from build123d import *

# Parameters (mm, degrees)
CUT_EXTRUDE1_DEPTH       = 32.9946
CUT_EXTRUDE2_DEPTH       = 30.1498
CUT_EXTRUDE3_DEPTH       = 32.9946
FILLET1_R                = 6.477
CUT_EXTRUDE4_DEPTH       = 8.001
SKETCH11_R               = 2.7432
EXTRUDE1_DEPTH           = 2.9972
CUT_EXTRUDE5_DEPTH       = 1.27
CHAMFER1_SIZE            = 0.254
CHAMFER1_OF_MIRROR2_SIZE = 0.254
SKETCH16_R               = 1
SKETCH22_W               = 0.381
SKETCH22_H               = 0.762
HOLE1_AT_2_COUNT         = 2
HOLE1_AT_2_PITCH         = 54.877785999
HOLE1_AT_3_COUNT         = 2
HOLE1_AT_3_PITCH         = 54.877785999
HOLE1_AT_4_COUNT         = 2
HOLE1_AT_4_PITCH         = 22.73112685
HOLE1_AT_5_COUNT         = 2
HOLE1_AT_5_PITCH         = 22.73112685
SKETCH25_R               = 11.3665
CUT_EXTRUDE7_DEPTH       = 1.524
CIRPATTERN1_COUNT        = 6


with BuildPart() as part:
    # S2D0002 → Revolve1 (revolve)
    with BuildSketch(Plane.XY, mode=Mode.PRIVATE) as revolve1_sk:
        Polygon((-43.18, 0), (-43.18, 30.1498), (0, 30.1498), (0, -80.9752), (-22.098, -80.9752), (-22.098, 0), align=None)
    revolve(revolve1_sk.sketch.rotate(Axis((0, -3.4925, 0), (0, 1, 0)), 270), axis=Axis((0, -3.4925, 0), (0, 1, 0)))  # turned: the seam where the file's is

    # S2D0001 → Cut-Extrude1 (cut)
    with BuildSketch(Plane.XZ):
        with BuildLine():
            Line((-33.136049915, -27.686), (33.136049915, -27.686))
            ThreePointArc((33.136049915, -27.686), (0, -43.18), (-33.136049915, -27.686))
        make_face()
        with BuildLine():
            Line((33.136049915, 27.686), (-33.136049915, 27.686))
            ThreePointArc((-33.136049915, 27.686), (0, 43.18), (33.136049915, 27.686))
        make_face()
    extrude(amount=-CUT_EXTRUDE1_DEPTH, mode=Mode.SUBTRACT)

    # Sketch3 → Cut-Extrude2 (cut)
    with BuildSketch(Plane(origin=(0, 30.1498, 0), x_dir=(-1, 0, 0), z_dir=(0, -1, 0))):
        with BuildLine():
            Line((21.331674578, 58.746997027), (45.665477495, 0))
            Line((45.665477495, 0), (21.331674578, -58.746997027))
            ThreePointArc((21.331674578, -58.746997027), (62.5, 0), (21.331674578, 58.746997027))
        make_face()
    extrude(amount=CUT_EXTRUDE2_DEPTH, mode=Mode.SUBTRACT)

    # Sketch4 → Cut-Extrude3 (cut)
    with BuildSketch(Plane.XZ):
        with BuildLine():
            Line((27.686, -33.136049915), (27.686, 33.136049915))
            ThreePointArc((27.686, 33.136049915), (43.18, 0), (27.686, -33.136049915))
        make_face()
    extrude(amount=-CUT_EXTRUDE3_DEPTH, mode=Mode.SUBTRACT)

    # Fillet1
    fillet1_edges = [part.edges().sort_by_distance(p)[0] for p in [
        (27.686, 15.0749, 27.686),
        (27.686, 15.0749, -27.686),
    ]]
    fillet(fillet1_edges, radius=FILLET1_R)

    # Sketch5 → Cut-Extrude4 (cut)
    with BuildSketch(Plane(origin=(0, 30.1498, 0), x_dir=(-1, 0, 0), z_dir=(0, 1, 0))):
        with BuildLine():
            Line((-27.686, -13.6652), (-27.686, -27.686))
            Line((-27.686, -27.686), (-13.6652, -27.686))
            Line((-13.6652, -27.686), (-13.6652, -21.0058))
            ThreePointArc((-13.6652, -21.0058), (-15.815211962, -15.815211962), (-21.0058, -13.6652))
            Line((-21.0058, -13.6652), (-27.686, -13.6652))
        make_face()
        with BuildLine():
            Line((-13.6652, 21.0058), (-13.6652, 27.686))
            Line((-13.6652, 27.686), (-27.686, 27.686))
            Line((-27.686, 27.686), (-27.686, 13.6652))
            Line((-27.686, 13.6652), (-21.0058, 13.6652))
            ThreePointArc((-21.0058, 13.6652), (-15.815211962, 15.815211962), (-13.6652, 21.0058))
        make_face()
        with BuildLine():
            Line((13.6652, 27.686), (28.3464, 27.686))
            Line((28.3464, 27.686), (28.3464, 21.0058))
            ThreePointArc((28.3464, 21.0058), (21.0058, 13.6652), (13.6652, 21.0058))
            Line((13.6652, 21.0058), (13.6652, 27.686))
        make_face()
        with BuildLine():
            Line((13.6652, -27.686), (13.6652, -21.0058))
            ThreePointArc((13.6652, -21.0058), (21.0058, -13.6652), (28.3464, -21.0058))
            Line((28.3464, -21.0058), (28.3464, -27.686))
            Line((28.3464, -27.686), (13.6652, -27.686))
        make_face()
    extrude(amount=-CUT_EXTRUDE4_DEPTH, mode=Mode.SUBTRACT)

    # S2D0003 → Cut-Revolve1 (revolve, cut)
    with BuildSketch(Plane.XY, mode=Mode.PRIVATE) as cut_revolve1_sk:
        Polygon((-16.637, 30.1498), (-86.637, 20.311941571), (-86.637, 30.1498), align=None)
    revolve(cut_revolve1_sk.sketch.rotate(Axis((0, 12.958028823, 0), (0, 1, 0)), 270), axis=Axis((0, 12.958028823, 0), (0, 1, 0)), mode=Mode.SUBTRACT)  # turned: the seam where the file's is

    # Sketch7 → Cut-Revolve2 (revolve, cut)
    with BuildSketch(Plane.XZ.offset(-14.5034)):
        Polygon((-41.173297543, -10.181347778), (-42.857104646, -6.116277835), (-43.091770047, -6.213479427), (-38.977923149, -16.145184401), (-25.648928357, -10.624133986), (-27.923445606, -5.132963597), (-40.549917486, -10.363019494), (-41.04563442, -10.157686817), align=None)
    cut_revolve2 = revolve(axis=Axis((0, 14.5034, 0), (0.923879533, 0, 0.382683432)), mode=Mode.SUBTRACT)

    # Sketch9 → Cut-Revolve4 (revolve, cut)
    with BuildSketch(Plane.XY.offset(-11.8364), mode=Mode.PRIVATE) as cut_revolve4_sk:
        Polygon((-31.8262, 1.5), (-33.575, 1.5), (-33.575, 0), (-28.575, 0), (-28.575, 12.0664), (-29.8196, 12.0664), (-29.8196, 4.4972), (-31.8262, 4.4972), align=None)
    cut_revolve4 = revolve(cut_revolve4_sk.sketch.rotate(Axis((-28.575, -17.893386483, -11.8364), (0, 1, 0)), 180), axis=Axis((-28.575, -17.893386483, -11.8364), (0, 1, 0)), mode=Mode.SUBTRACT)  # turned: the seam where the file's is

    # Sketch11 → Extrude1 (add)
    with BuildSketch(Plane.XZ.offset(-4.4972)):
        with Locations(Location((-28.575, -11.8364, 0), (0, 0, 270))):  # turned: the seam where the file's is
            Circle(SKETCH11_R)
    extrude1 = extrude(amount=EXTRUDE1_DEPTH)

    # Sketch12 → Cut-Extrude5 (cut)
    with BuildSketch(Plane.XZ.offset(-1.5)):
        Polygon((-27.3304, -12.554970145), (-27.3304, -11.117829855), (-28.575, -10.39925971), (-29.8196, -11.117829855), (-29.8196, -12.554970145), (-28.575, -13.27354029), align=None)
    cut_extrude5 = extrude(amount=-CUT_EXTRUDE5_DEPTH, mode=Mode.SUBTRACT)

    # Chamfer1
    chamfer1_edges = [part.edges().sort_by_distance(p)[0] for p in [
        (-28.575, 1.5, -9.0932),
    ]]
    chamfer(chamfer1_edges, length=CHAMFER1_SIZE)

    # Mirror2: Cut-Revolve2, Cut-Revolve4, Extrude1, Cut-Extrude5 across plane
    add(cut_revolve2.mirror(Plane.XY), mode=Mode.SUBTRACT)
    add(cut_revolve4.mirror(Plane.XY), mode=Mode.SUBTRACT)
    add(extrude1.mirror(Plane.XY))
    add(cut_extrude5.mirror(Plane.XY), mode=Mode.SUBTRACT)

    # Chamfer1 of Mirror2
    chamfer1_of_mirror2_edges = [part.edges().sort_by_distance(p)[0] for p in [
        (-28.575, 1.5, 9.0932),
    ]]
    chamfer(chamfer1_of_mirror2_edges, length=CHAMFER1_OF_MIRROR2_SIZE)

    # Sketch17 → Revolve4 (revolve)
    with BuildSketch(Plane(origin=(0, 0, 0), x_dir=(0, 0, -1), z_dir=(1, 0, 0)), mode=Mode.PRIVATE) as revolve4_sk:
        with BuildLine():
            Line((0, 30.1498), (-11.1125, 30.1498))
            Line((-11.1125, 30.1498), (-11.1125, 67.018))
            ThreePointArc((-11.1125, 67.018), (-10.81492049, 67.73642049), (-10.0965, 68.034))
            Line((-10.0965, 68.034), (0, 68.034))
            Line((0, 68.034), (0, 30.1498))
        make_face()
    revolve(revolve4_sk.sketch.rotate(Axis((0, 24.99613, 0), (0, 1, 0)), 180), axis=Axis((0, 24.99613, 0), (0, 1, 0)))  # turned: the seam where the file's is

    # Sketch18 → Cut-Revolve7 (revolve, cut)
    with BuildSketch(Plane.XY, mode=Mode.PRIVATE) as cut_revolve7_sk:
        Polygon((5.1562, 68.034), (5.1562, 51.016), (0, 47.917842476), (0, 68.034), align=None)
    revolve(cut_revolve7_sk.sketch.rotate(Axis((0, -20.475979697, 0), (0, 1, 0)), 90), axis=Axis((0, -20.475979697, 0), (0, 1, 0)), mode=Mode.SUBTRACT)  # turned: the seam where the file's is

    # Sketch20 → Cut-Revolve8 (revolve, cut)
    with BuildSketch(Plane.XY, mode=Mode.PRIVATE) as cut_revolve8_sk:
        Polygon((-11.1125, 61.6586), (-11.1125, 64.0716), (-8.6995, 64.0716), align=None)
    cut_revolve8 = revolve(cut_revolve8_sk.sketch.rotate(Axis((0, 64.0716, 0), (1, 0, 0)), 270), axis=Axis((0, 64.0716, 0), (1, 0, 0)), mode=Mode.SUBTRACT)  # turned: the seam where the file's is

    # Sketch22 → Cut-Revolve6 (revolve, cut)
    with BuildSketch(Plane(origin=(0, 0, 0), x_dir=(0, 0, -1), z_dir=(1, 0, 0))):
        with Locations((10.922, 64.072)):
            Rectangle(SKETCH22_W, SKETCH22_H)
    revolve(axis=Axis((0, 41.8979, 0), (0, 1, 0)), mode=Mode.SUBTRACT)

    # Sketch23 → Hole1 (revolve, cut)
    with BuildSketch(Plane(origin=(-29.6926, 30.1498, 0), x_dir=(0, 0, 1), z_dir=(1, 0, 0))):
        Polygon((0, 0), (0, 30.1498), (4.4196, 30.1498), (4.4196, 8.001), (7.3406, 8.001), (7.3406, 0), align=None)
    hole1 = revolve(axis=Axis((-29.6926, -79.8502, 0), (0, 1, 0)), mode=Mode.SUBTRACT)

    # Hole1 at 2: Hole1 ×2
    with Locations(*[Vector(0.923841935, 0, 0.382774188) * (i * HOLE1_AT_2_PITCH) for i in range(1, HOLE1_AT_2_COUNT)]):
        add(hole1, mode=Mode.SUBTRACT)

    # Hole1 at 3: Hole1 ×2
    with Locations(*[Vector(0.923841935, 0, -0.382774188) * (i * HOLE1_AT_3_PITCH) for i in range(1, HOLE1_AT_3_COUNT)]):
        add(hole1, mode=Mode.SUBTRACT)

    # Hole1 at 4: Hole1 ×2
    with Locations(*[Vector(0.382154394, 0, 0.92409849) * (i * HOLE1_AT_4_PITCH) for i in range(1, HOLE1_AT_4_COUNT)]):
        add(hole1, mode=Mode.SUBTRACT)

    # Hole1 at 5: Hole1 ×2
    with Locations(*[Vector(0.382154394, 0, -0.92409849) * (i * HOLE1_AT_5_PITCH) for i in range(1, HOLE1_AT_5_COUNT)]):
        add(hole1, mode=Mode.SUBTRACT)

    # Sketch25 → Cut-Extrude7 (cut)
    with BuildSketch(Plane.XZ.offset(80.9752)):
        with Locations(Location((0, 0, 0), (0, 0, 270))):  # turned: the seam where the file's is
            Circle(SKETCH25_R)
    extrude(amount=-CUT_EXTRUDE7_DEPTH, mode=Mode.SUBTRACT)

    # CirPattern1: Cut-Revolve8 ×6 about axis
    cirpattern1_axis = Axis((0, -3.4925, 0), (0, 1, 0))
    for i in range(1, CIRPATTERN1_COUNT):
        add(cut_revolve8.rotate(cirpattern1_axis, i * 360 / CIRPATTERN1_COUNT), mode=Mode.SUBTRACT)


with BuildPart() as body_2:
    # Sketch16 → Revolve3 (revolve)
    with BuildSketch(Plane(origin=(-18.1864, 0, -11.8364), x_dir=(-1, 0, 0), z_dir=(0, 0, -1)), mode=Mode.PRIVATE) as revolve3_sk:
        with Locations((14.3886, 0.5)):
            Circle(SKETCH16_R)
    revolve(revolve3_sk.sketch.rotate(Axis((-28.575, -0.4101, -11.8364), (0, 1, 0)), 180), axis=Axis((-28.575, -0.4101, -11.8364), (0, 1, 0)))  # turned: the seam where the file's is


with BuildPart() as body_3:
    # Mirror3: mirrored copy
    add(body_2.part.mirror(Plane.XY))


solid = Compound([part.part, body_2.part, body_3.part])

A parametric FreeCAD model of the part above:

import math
import FreeCAD as App
import Part
import Sketcher
from FreeCAD import Vector
Q = App.Units.Quantity


def edges_at(feature, points):
    """Names of the edges that pass closest to the given points."""
    edges = feature.Shape.Edges
    near = lambda p: min(range(len(edges)), key=lambda i: edges[i].distToShape(Part.Vertex(*p))[0])
    return sorted({f"Edge{near(p) + 1}" for p in points})


def add_polygon(sketch, points):
    """Adds a closed chain of lines whose ends are joined by coincident constraints."""
    first, n = sketch.GeometryCount, len(points)
    for a, b in zip(points, points[1:] + points[:1]):
        sketch.addGeometry(Part.LineSegment(App.Vector(*a, 0), App.Vector(*b, 0)), False)
    for i in range(n):
        sketch.addConstraint(Sketcher.Constraint("Coincident", first + i, 2, first + (i + 1) % n, 1))

doc = App.newDocument("Part")
body = doc.addObject("PartDesign::Body", "Body")

# Sketch on XY plane
sketch1 = body.newObject("Sketcher::SketchObject", "Sketch")
sketch1.AttachmentSupport = (doc.getObject("XY_Plane"), [""])
sketch1.MapMode = "FlatFace"
add_polygon(sketch1, [(-43, 30), (-43, 0), (-22, 0), (-22, -81), (0, -81), (0, 30)])  # lines 0-5
sketch1.addConstraint(Sketcher.Constraint("Vertical", 0))
sketch1.addConstraint(Sketcher.Constraint("Horizontal", 1))
sketch1.addConstraint(Sketcher.Constraint("Vertical", 2))
sketch1.addConstraint(Sketcher.Constraint("Horizontal", 3))
sketch1.addConstraint(Sketcher.Constraint("Vertical", 4))
sketch1.addConstraint(Sketcher.Constraint("Horizontal", 5))
sketch1.addConstraint(Sketcher.Constraint("PointOnObject", 0, 2, -1))
sketch1.addConstraint(Sketcher.Constraint("PointOnObject", 3, 2, -2))
sketch1.addConstraint(Sketcher.Constraint("DistanceX", 5, 2, 5, 1, Q("1.7 in")))
sketch1.addConstraint(Sketcher.Constraint("DistanceX", 1, 1, 1, 2, Q("0.83 in")))
sketch1.addConstraint(Sketcher.Constraint("DistanceY", 0, 2, 0, 1, Q("1.187 in")))
sketch1.addConstraint(Sketcher.Constraint("DistanceY", 2, 2, 2, 1, Q("3.188 in")))
revolution = body.newObject("PartDesign::Revolution", "Revolution")
revolution.Profile = sketch1
revolution.ReferenceAxis = (sketch1, ["V_Axis"])
revolution.Angle = 360

# Sketch on XZ plane
sketch2 = body.newObject("Sketcher::SketchObject", "Sketch001")
sketch2.AttachmentSupport = (doc.getObject("XZ_Plane"), [""])
sketch2.MapMode = "FlatFace"
sketch2.addGeometry(Part.LineSegment(Vector(33, -28, 0), Vector(-33, -28, 0)), False)
sketch2.addGeometry(Part.ArcOfCircle(Part.Circle(Vector(0, 0, 0), Vector(0, 0, 1), 43), math.radians(-140), math.radians(-40)), False)
sketch2.addGeometry(Part.LineSegment(Vector(-33, 28, 0), Vector(33, 28, 0)), False)
sketch2.addGeometry(Part.ArcOfCircle(Part.Circle(Vector(0, 0, 0), Vector(0, 0, 1), 43), math.radians(40), math.radians(140)), False)
sketch2.addConstraint(Sketcher.Constraint("Coincident", 0, 1, 1, 2))
sketch2.addConstraint(Sketcher.Constraint("Coincident", 1, 1, 0, 2))
sketch2.addConstraint(Sketcher.Constraint("Coincident", 2, 1, 3, 2))
sketch2.addConstraint(Sketcher.Constraint("Coincident", 3, 1, 2, 2))
sketch2.addConstraint(Sketcher.Constraint("Horizontal", 0))
sketch2.addConstraint(Sketcher.Constraint("Horizontal", 2))
sketch2.addConstraint(Sketcher.Constraint("Coincident", 1, 3, -1, 1))
sketch2.addConstraint(Sketcher.Constraint("Coincident", 3, 3, -1, 1))
sketch2.addConstraint(Sketcher.Constraint("Equal", 1, 3))
sketch2.addConstraint(Sketcher.Constraint("Vertical", 1, 1, 2, 1))
sketch2.addConstraint(Sketcher.Constraint("Radius", 1, Q("1.7 in")))
sketch2.addConstraint(Sketcher.Constraint("DistanceY", 0, 1, -1, 1, Q("1.09 in")))
pocket1 = body.newObject("PartDesign::Pocket", "Pocket")
pocket1.Profile = sketch2
pocket1.Length = Q("1.299 in")

# Sketch on XZ plane
sketch3 = body.newObject("Sketcher::SketchObject", "Sketch002")
sketch3.AttachmentSupport = (doc.getObject("XZ_Plane"), [""])
sketch3.MapMode = "FlatFace"
sketch3.AttachmentOffset = App.Placement(Vector(0, 0, -1.187 * 25.4), App.Rotation())
sketch3.addGeometry(Part.LineSegment(Vector(-21, -59, 0), Vector(-46, 0, 0)), False)
sketch3.addGeometry(Part.LineSegment(Vector(-46, 0, 0), Vector(-21, 59, 0)), False)
sketch3.addGeometry(Part.ArcOfCircle(Part.Circle(Vector(0, 0, 0), Vector(0, 0, 1), 62), math.radians(110), math.radians(250)), False)
sketch3.addConstraint(Sketcher.Constraint("Coincident", 0, 2, 1, 1))
sketch3.addConstraint(Sketcher.Constraint("Coincident", 1, 2, 2, 1))
sketch3.addConstraint(Sketcher.Constraint("Coincident", 2, 2, 0, 1))
sketch3.addConstraint(Sketcher.Constraint("Coincident", 2, 3, -1, 1))
sketch3.addConstraint(Sketcher.Constraint("PointOnObject", 0, 2, -1))
sketch3.addConstraint(Sketcher.Constraint("Vertical", 1, 2, 2, 2))
sketch3.addConstraint(Sketcher.Constraint("Angle", 0, Q("112.5 deg")))
sketch3.addConstraint(Sketcher.Constraint("Radius", 2, Q("62.5 mm")))
sketch3.addConstraint(Sketcher.Constraint("Distance", 0, Q("63.587291 mm")))
pocket2 = body.newObject("PartDesign::Pocket", "Pocket001")
pocket2.Profile = sketch3
pocket2.Length = Q("1.187 in")
pocket2.Reversed = True

# Sketch on XZ plane
sketch4 = body.newObject("Sketcher::SketchObject", "Sketch003")
sketch4.AttachmentSupport = (doc.getObject("XZ_Plane"), [""])
sketch4.MapMode = "FlatFace"
sketch4.addGeometry(Part.LineSegment(Vector(28, 33, 0), Vector(28, -33, 0)), False)
sketch4.addGeometry(Part.ArcOfCircle(Part.Circle(Vector(0, 0, 0), Vector(0, 0, 1), 43), math.radians(-50), math.radians(50)), False)
sketch4.addConstraint(Sketcher.Constraint("Coincident", 0, 1, 1, 2))
sketch4.addConstraint(Sketcher.Constraint("Coincident", 1, 1, 0, 2))
sketch4.addConstraint(Sketcher.Constraint("Vertical", 0))
sketch4.addConstraint(Sketcher.Constraint("Coincident", 1, 3, -1, 1))
sketch4.addConstraint(Sketcher.Constraint("Radius", 1, Q("1.7 in")))
sketch4.addConstraint(Sketcher.Constraint("DistanceX", -1, 1, 0, 1, Q("1.09 in")))
pocket3 = body.newObject("PartDesign::Pocket", "Pocket002")
pocket3.Profile = sketch4
pocket3.Length = Q("1.299 in")
doc.recompute()

fillet = body.newObject("PartDesign::Fillet", "Fillet")
fillet.Base = (pocket3, edges_at(pocket3, [(27.686, 15.075, 27.686), (27.686, 15.075, -27.686)]))
fillet.Radius = Q("0.255 in")

# Sketch on XZ plane
sketch5 = body.newObject("Sketcher::SketchObject", "Sketch004")
sketch5.AttachmentSupport = (doc.getObject("XZ_Plane"), [""])
sketch5.MapMode = "FlatFace"
sketch5.AttachmentOffset = App.Placement(Vector(0, 0, -1.187 * 25.4), App.Rotation())
sketch5.addGeometry(Part.LineSegment(Vector(28, -14, 0), Vector(28, -28, 0)), False)
sketch5.addGeometry(Part.LineSegment(Vector(28, -28, 0), Vector(14, -28, 0)), False)
sketch5.addGeometry(Part.LineSegment(Vector(14, -28, 0), Vector(14, -21, 0)), False)
sketch5.addGeometry(Part.ArcOfCircle(Part.Circle(Vector(21, -21, 0), Vector(0, 0, 1), 7), math.radians(90), math.radians(180)), False)
sketch5.addGeometry(Part.LineSegment(Vector(21, -14, 0), Vector(28, -14, 0)), False)
sketch5.addGeometry(Part.LineSegment(Vector(14, 21, 0), Vector(14, 28, 0)), False)
sketch5.addGeometry(Part.LineSegment(Vector(14, 28, 0), Vector(28, 28, 0)), False)
sketch5.addGeometry(Part.LineSegment(Vector(28, 28, 0), Vector(28, 14, 0)), False)
sketch5.addGeometry(Part.LineSegment(Vector(28, 14, 0), Vector(21, 14, 0)), False)
sketch5.addGeometry(Part.ArcOfCircle(Part.Circle(Vector(21, 21, 0), Vector(0, 0, 1), 7), math.radians(180), math.radians(270)), False)
sketch5.addGeometry(Part.LineSegment(Vector(-28, 28, 0), Vector(-14, 28, 0)), False)
sketch5.addGeometry(Part.LineSegment(Vector(-14, 28, 0), Vector(-14, 21, 0)), False)
sketch5.addGeometry(Part.ArcOfCircle(Part.Circle(Vector(-21, 21, 0), Vector(0, 0, 1), 7), math.radians(180), math.radians(360)), False)
sketch5.addGeometry(Part.LineSegment(Vector(-28, 21, 0), Vector(-28, 28, 0)), False)
sketch5.addGeometry(Part.LineSegment(Vector(-14, -21, 0), Vector(-14, -28, 0)), False)
sketch5.addGeometry(Part.LineSegment(Vector(-14, -28, 0), Vector(-28, -28, 0)), False)
sketch5.addGeometry(Part.LineSegment(Vector(-28, -28, 0), Vector(-28, -21, 0)), False)
sketch5.addGeometry(Part.ArcOfCircle(Part.Circle(Vector(-21, -21, 0), Vector(0, 0, 1), 7), math.radians(0), math.radians(180)), False)
sketch5.addConstraint(Sketcher.Constraint("Coincident", 0, 2, 1, 1))
sketch5.addConstraint(Sketcher.Constraint("Coincident", 1, 2, 2, 1))
sketch5.addConstraint(Sketcher.Constraint("Tangent", 2, 2, 3, 2))
sketch5.addConstraint(Sketcher.Constraint("Tangent", 3, 1, 4, 1))
sketch5.addConstraint(Sketcher.Constraint("Coincident", 4, 2, 0, 1))
sketch5.addConstraint(Sketcher.Constraint("Coincident", 5, 2, 6, 1))
sketch5.addConstraint(Sketcher.Constraint("Coincident", 6, 2, 7, 1))
sketch5.addConstraint(Sketcher.Constraint("Coincident", 7, 2, 8, 1))
sketch5.addConstraint(Sketcher.Constraint("Tangent", 8, 2, 9, 2))
sketch5.addConstraint(Sketcher.Constraint("Tangent", 9, 1, 5, 1))
sketch5.addConstraint(Sketcher.Constraint("Coincident", 10, 2, 11, 1))
sketch5.addConstraint(Sketcher.Constraint("Tangent", 11, 2, 12, 2))
sketch5.addConstraint(Sketcher.Constraint("Tangent", 12, 1, 13, 1))
sketch5.addConstraint(Sketcher.Constraint("Coincident", 13, 2, 10, 1))
sketch5.addConstraint(Sketcher.Constraint("Coincident", 14, 2, 15, 1))
sketch5.addConstraint(Sketcher.Constraint("Coincident", 15, 2, 16, 1))
sketch5.addConstraint(Sketcher.Constraint("Tangent", 16, 2, 17, 2))
sketch5.addConstraint(Sketcher.Constraint("Tangent", 17, 1, 14, 1))
sketch5.addConstraint(Sketcher.Constraint("Vertical", 0))
sketch5.addConstraint(Sketcher.Constraint("Horizontal", 1))
sketch5.addConstraint(Sketcher.Constraint("Vertical", 2))
sketch5.addConstraint(Sketcher.Constraint("Horizontal", 4))
sketch5.addConstraint(Sketcher.Constraint("Vertical", 5))
sketch5.addConstraint(Sketcher.Constraint("Horizontal", 6))
sketch5.addConstraint(Sketcher.Constraint("Vertical", 7))
sketch5.addConstraint(Sketcher.Constraint("Horizontal", 8))
sketch5.addConstraint(Sketcher.Constraint("Horizontal", 10))
sketch5.addConstraint(Sketcher.Constraint("Vertical", 11))
sketch5.addConstraint(Sketcher.Constraint("Vertical", 13))
sketch5.addConstraint(Sketcher.Constraint("Vertical", 14))
sketch5.addConstraint(Sketcher.Constraint("Horizontal", 15))
sketch5.addConstraint(Sketcher.Constraint("Vertical", 16))
sketch5.addConstraint(Sketcher.Constraint("Equal", 3, 9))
sketch5.addConstraint(Sketcher.Constraint("Equal", 9, 12))
sketch5.addConstraint(Sketcher.Constraint("Equal", 12, 17))
sketch5.addConstraint(Sketcher.Constraint("Symmetric", 3, 3, 12, 3, -1, 1))
sketch5.addConstraint(Sketcher.Constraint("Symmetric", 9, 3, 17, 3, -1, 1))
sketch5.addConstraint(Sketcher.Constraint("Symmetric", 9, 3, 12, 3, -2))
sketch5.addConstraint(Sketcher.Constraint("Symmetric", 0, 2, 6, 2, -1))
sketch5.addConstraint(Sketcher.Constraint("Horizontal", 6, 2, 10, 2))
sketch5.addConstraint(Sketcher.Constraint("Horizontal", 1, 2, 14, 2))
sketch5.addConstraint(Sketcher.Constraint("Equal", 6, 0))
sketch5.addConstraint(Sketcher.Constraint("Radius", 3, Q("0.289 in")))
sketch5.addConstraint(Sketcher.Constraint("DistanceX", 1, 2, 1, 1, Q("0.552 in")))
sketch5.addConstraint(Sketcher.Constraint("DistanceX", -1, 1, 0, 2, Q("1.09 in")))
sketch5.addConstraint(Sketcher.Constraint("DistanceY", 0, 2, -1, 1, Q("1.09 in")))
pocket4 = body.newObject("PartDesign::Pocket", "Pocket003")
pocket4.Profile = sketch5
pocket4.Length = Q("0.315 in")
pocket4.Reversed = True

# Sketch on XY plane
sketch6 = body.newObject("Sketcher::SketchObject", "Sketch005")
sketch6.AttachmentSupport = (doc.getObject("XY_Plane"), [""])
sketch6.MapMode = "FlatFace"
add_polygon(sketch6, [(-87, 20), (-17, 30), (-87, 30)])  # lines 0-2
sketch6.addConstraint(Sketcher.Constraint("Horizontal", 1))
sketch6.addConstraint(Sketcher.Constraint("Vertical", 2))
sketch6.addConstraint(Sketcher.Constraint("Angle", 0, Q("8 deg")))
sketch6.addConstraint(Sketcher.Constraint("DistanceX", 0, 2, -1, 1, Q("0.655 in")))
sketch6.addConstraint(Sketcher.Constraint("DistanceY", -1, 1, 0, 2, Q("1.187 in")))
sketch6.addConstraint(Sketcher.Constraint("DistanceX", 1, 2, 1, 1, Q("70 mm")))
groove = body.newObject("PartDesign::Groove", "Groove")
groove.Profile = sketch6
groove.ReferenceAxis = (sketch6, ["V_Axis"])
groove.Angle = 360

# Sketch on XZ plane
sketch7 = body.newObject("Sketcher::SketchObject", "Sketch006")
sketch7.AttachmentSupport = (doc.getObject("XZ_Plane"), [""])
sketch7.MapMode = "FlatFace"
sketch7.AttachmentOffset = App.Placement(Vector(0, 0, -0.571 * 25.4), App.Rotation())
add_polygon(sketch7, [(-41.17, -10.18), (-42.86, -6.12), (-43.09, -6.21), (-38.98, -16.15), (-25.65, -10.62), (-27.92, -5.13), (-40.55, -10.36), (-41.05, -10.16)])  # lines 0-7
sketch7.addGeometry(Part.LineSegment(Vector(-38.98, -16.15, 0), Vector(-25.65, -10.62, 0)), True)  # axis
sketch7.addConstraint(Sketcher.Constraint("Coincident", 8, 1, 2, 2))
sketch7.addConstraint(Sketcher.Constraint("Coincident", 8, 2, 3, 2))
sketch7.addConstraint(Sketcher.Constraint("Perpendicular", 0, 1))
sketch7.addConstraint(Sketcher.Constraint("Perpendicular", 1, 2))
sketch7.addConstraint(Sketcher.Constraint("Perpendicular", 2, 3))
sketch7.addConstraint(Sketcher.Constraint("Perpendicular", 3, 4))
sketch7.addConstraint(Sketcher.Constraint("Perpendicular", 4, 5))
sketch7.addConstraint(Sketcher.Constraint("Angle", 0, Q("112.5 deg")))
sketch7.addConstraint(Sketcher.Constraint("Angle", 6, Q("157.5 deg")))
sketch7.addConstraint(Sketcher.Constraint("Angle", 7, Q("-169.5 deg")))
sketch7.addConstraint(Sketcher.Constraint("Distance", 1, Q("0.01 in")))
sketch7.addConstraint(Sketcher.Constraint("Distance", 3, Q("0.568 in")))
sketch7.addConstraint(Sketcher.Constraint("Distance", 4, Q("0.234 in")))
sketch7.addConstraint(Sketcher.Constraint("Distance", 0, Q("4.4 mm")))
sketch7.addConstraint(Sketcher.Constraint("Distance", 2, Q("10.75 mm")))
sketch7.addConstraint(Sketcher.Constraint("Distance", 6, Q("0.53656 mm")))
sketch7.addConstraint(Sketcher.Constraint("DistanceX", 1, 2, -1, 1, Q("43.09177 mm")))
sketch7.addConstraint(Sketcher.Constraint("DistanceY", 1, 2, -1, 1, Q("6.213479 mm")))
groove2 = body.newObject("PartDesign::Groove", "Groove001")
groove2.Profile = sketch7
groove2.ReferenceAxis = (sketch7, ["Axis0"])
groove2.Angle = 360

# Sketch on XY plane
sketch8 = body.newObject("Sketcher::SketchObject", "Sketch007")
sketch8.AttachmentSupport = (doc.getObject("XY_Plane"), [""])
sketch8.MapMode = "FlatFace"
sketch8.AttachmentOffset = App.Placement(Vector(0, 0, -0.466 * 25.4), App.Rotation())
add_polygon(sketch8, [(-31.8, 1.5), (-33.6, 1.5), (-33.6, 0), (-28.6, 0), (-28.6, 12.1), (-29.8, 12.1), (-29.8, 4.5), (-31.8, 4.5)])  # lines 0-7
sketch8.addGeometry(Part.LineSegment(Vector(-28.6, 0, 0), Vector(-28.6, 12.1, 0)), True)  # axis
sketch8.addConstraint(Sketcher.Constraint("Horizontal", 0))
sketch8.addConstraint(Sketcher.Constraint("Vertical", 1))
sketch8.addConstraint(Sketcher.Constraint("Horizontal", 2))
sketch8.addConstraint(Sketcher.Constraint("Vertical", 3))
sketch8.addConstraint(Sketcher.Constraint("Horizontal", 4))
sketch8.addConstraint(Sketcher.Constraint("Vertical", 5))
sketch8.addConstraint(Sketcher.Constraint("Horizontal", 6))
sketch8.addConstraint(Sketcher.Constraint("Vertical", 7))
sketch8.addConstraint(Sketcher.Constraint("Vertical", 8))
sketch8.addConstraint(Sketcher.Constraint("Coincident", 8, 1, 2, 2))
sketch8.addConstraint(Sketcher.Constraint("PointOnObject", 1, 2, -1))
sketch8.addConstraint(Sketcher.Constraint("Horizontal", 4, 2, 8, 2))
sketch8.addConstraint(Sketcher.Constraint("DistanceX", 4, 2, 4, 1, Q("0.049 in")))
sketch8.addConstraint(Sketcher.Constraint("DistanceX", 6, 2, 6, 1, Q("0.079 in")))
sketch8.addConstraint(Sketcher.Constraint("DistanceY", 5, 2, 5, 1, Q("0.298 in")))
sketch8.addConstraint(Sketcher.Constraint("DistanceY", 7, 2, 7, 1, Q("0.118 in")))
sketch8.addConstraint(Sketcher.Constraint("DistanceX", 2, 2, -1, 1, Q("1.125 in")))
sketch8.addConstraint(Sketcher.Constraint("DistanceX", 0, 2, 0, 1, Q("1.7488 mm")))
sketch8.addConstraint(Sketcher.Constraint("DistanceY", 1, 2, 1, 1, Q("1.5 mm")))
groove3 = body.newObject("PartDesign::Groove", "Groove002")
groove3.Profile = sketch8
groove3.ReferenceAxis = (sketch8, ["Axis0"])
groove3.Angle = 360

# Sketch on XZ plane
sketch9 = body.newObject("Sketcher::SketchObject", "Sketch008")
sketch9.AttachmentSupport = (doc.getObject("XZ_Plane"), [""])
sketch9.MapMode = "FlatFace"
sketch9.AttachmentOffset = App.Placement(Vector(0, 0, -4.4972), App.Rotation())
sketch9.addGeometry(Part.Circle(Vector(-28.6, -11.8, 0), Vector(0, 0, 1), 2.7), False)
sketch9.addConstraint(Sketcher.Constraint("Diameter", 0, Q("0.216 in")))
sketch9.addConstraint(Sketcher.Constraint("DistanceX", 0, 3, -1, 1, Q("1.125 in")))
sketch9.addConstraint(Sketcher.Constraint("DistanceY", 0, 3, -1, 1, Q("0.466 in")))
pad1 = body.newObject("PartDesign::Pad", "Pad")
pad1.Profile = sketch9
pad1.Length = Q("0.118 in")

# Sketch on XZ plane
sketch10 = body.newObject("Sketcher::SketchObject", "Sketch009")
sketch10.AttachmentSupport = (doc.getObject("XZ_Plane"), [""])
sketch10.MapMode = "FlatFace"
sketch10.AttachmentOffset = App.Placement(Vector(0, 0, -1.5), App.Rotation())
add_polygon(sketch10, [(-27.3, -12.6), (-27.3, -11.1), (-28.6, -10.4), (-29.8, -11.1), (-29.8, -12.6), (-28.6, -13.3)])  # lines 0-5
sketch10.addConstraint(Sketcher.Constraint("Vertical", 0))
sketch10.addConstraint(Sketcher.Constraint("Vertical", 3))
sketch10.addConstraint(Sketcher.Constraint("Parallel", 1, 4))
sketch10.addConstraint(Sketcher.Constraint("Parallel", 2, 5))
sketch10.addConstraint(Sketcher.Constraint("Horizontal", 0, 2, 2, 2))
sketch10.addConstraint(Sketcher.Constraint("Horizontal", 3, 2, 5, 2))
sketch10.addConstraint(Sketcher.Constraint("Vertical", 1, 2, 4, 2))
sketch10.addConstraint(Sketcher.Constraint("Angle", 1, Q("150 deg")))
sketch10.addConstraint(Sketcher.Constraint("DistanceX", 0, 2, -1, 1, Q("1.076 in")))
sketch10.addConstraint(Sketcher.Constraint("DistanceX", 1, 2, -1, 1, Q("1.125 in")))
sketch10.addConstraint(Sketcher.Constraint("DistanceY", 0, 1, 0, 2, Q("1.43714 mm")))
sketch10.addConstraint(Sketcher.Constraint("DistanceY", 0, 2, -1, 1, Q("11.11783 mm")))
pocket5 = body.newObject("PartDesign::Pocket", "Pocket004")
pocket5.Profile = sketch10
pocket5.Length = Q("0.05 in")
doc.recompute()

chamfer = body.newObject("PartDesign::Chamfer", "Chamfer")
chamfer.Base = (pocket5, edges_at(pocket5, [(-28.575, 1.5, -9.093)]))
chamfer.Size = Q("0.01 in")
doc.recompute()

mirrored = body.newObject("PartDesign::Mirrored", "Mirrored")
mirrored.Originals = [groove2, groove3, pad1, pocket5]
mirrored.MirrorPlane = (doc.getObject("XY_Plane"), [""])
body.Tip = mirrored
doc.recompute()

chamfer2 = body.newObject("PartDesign::Chamfer", "Chamfer001")
chamfer2.Base = (mirrored, edges_at(mirrored, [(-28.575, 1.5, 9.093)]))
chamfer2.Size = Q("0.01 in")

# Sketch on YZ plane
sketch11 = body.newObject("Sketcher::SketchObject", "Sketch010")
sketch11.AttachmentSupport = (doc.getObject("YZ_Plane"), [""])
sketch11.MapMode = "FlatFace"
sketch11.addGeometry(Part.LineSegment(Vector(30.1, 11.1, 0), Vector(30.1, 0, 0)), False)
sketch11.addGeometry(Part.LineSegment(Vector(30.1, 0, 0), Vector(68, 0, 0)), False)
sketch11.addGeometry(Part.LineSegment(Vector(68, 0, 0), Vector(68, 10.1, 0)), False)
sketch11.addGeometry(Part.ArcOfCircle(Part.Circle(Vector(67, 10.1, 0), Vector(0, 0, 1), 1), math.radians(0), math.radians(90)), False)
sketch11.addGeometry(Part.LineSegment(Vector(67, 11.1, 0), Vector(30.1, 11.1, 0)), False)
sketch11.addConstraint(Sketcher.Constraint("Coincident", 0, 2, 1, 1))
sketch11.addConstraint(Sketcher.Constraint("Coincident", 1, 2, 2, 1))
sketch11.addConstraint(Sketcher.Constraint("Tangent", 2, 2, 3, 1))
sketch11.addConstraint(Sketcher.Constraint("Tangent", 3, 2, 4, 1))
sketch11.addConstraint(Sketcher.Constraint("Coincident", 4, 2, 0, 1))
sketch11.addConstraint(Sketcher.Constraint("Vertical", 0))
sketch11.addConstraint(Sketcher.Constraint("Horizontal", 1))
sketch11.addConstraint(Sketcher.Constraint("Vertical", 2))
sketch11.addConstraint(Sketcher.Constraint("Horizontal", 4))
sketch11.addConstraint(Sketcher.Constraint("PointOnObject", 0, 2, -1))
sketch11.addConstraint(Sketcher.Constraint("Radius", 3, Q("0.04 in")))
sketch11.addConstraint(Sketcher.Constraint("DistanceY", 0, 2, 0, 1, Q("0.4375 in")))
sketch11.addConstraint(Sketcher.Constraint("DistanceX", -1, 1, 0, 2, Q("1.187 in")))
sketch11.addConstraint(Sketcher.Constraint("DistanceX", 1, 1, 1, 2, Q("37.8842 mm")))
revolution2 = body.newObject("PartDesign::Revolution", "Revolution001")
revolution2.Profile = sketch11
revolution2.ReferenceAxis = (sketch11, ["H_Axis"])
revolution2.Angle = 360

# Sketch on XY plane
sketch12 = body.newObject("Sketcher::SketchObject", "Sketch011")
sketch12.AttachmentSupport = (doc.getObject("XY_Plane"), [""])
sketch12.MapMode = "FlatFace"
add_polygon(sketch12, [(5, 51), (5, 68), (0, 68), (0, 48)])  # lines 0-3
sketch12.addConstraint(Sketcher.Constraint("Vertical", 0))
sketch12.addConstraint(Sketcher.Constraint("Horizontal", 1))
sketch12.addConstraint(Sketcher.Constraint("Vertical", 2))
sketch12.addConstraint(Sketcher.Constraint("PointOnObject", 1, 2, -2))
sketch12.addConstraint(Sketcher.Constraint("Angle", 3, Q("31 deg")))
sketch12.addConstraint(Sketcher.Constraint("DistanceY", 0, 1, 0, 2, Q("0.67 in")))
sketch12.addConstraint(Sketcher.Constraint("DistanceX", 1, 2, 1, 1, Q("0.203 in")))
sketch12.addConstraint(Sketcher.Constraint("DistanceY", -1, 1, 0, 2, Q("68.034 mm")))
groove4 = body.newObject("PartDesign::Groove", "Groove003")
groove4.Profile = sketch12
groove4.ReferenceAxis = (sketch12, ["V_Axis"])
groove4.Angle = 360

# Sketch on XY plane
sketch13 = body.newObject("Sketcher::SketchObject", "Sketch012")
sketch13.AttachmentSupport = (doc.getObject("XY_Plane"), [""])
sketch13.MapMode = "FlatFace"
add_polygon(sketch13, [(-11.1, 64.1), (-11.1, 61.7), (-8.7, 64.1)])  # lines 0-2
sketch13.addGeometry(Part.LineSegment(Vector(-11.1, 64.1, 0), Vector(-8.7, 64.1, 0)), True)  # axis
sketch13.addConstraint(Sketcher.Constraint("Vertical", 0))
sketch13.addConstraint(Sketcher.Constraint("Horizontal", 2))
sketch13.addConstraint(Sketcher.Constraint("Horizontal", 3))
sketch13.addConstraint(Sketcher.Constraint("Coincident", 3, 1, 2, 2))
sketch13.addConstraint(Sketcher.Constraint("Equal", 2, 3))
sketch13.addConstraint(Sketcher.Constraint("Equal", 3, 0))
sketch13.addConstraint(Sketcher.Constraint("DistanceX", 2, 2, 2, 1, Q("0.095 in")))
sketch13.addConstraint(Sketcher.Constraint("DistanceX", 0, 2, -1, 1, Q("0.4375 in")))
sketch13.addConstraint(Sketcher.Constraint("DistanceY", -1, 1, 0, 2, Q("61.6586 mm")))
groove5 = body.newObject("PartDesign::Groove", "Groove004")
groove5.Profile = sketch13
groove5.ReferenceAxis = (sketch13, ["Axis0"])
groove5.Angle = 360

# Sketch on YZ plane
sketch14 = body.newObject("Sketcher::SketchObject", "Sketch013")
sketch14.AttachmentSupport = (doc.getObject("YZ_Plane"), [""])
sketch14.MapMode = "FlatFace"
add_polygon(sketch14, [(64.45, -10.73), (63.69, -10.73), (63.69, -11.11), (64.45, -11.11)])  # lines 0-3
sketch14.addConstraint(Sketcher.Constraint("Horizontal", 0))
sketch14.addConstraint(Sketcher.Constraint("Vertical", 1))
sketch14.addConstraint(Sketcher.Constraint("Horizontal", 2))
sketch14.addConstraint(Sketcher.Constraint("Vertical", 3))
sketch14.addConstraint(Sketcher.Constraint("DistanceX", 0, 2, 0, 1, Q("0.03 in")))
sketch14.addConstraint(Sketcher.Constraint("DistanceY", 1, 2, 1, 1, Q("0.015 in")))
sketch14.addConstraint(Sketcher.Constraint("DistanceY", 1, 2, -1, 1, Q("0.4375 in")))
sketch14.addConstraint(Sketcher.Constraint("DistanceX", -1, 1, 0, 2, Q("63.691 mm")))
groove6 = body.newObject("PartDesign::Groove", "Groove005")
groove6.Profile = sketch14
groove6.ReferenceAxis = (sketch14, ["H_Axis"])
groove6.Angle = 360

# Sketch on YZ plane
sketch15 = body.newObject("Sketcher::SketchObject", "Sketch014")
sketch15.AttachmentSupport = (doc.getObject("YZ_Plane"), [""])
sketch15.MapMode = "FlatFace"
sketch15.AttachmentOffset = App.Placement(Vector(0, 0, -1.169 * 25.4), App.Rotation())
add_polygon(sketch15, [(0, 0), (30.1, 0), (30.1, 7.3), (22.1, 7.3), (22.1, 4.4), (0, 4.4)])  # lines 0-5
sketch15.addConstraint(Sketcher.Constraint("Horizontal", 0))
sketch15.addConstraint(Sketcher.Constraint("Vertical", 1))
sketch15.addConstraint(Sketcher.Constraint("Horizontal", 2))
sketch15.addConstraint(Sketcher.Constraint("Vertical", 3))
sketch15.addConstraint(Sketcher.Constraint("Horizontal", 4))
sketch15.addConstraint(Sketcher.Constraint("Vertical", 5))
sketch15.addConstraint(Sketcher.Constraint("Coincident", 5, 2, -1, 1))
sketch15.addConstraint(Sketcher.Constraint("DistanceX", 0, 1, 0, 2, Q("1.187 in")))
sketch15.addConstraint(Sketcher.Constraint("DistanceX", 2, 2, 2, 1, Q("0.315 in")))
sketch15.addConstraint(Sketcher.Constraint("DistanceY", 1, 1, 1, 2, Q("0.289 in")))
sketch15.addConstraint(Sketcher.Constraint("DistanceY", 3, 2, 3, 1, Q("0.115 in")))
groove7 = body.newObject("PartDesign::Groove", "Groove006")
groove7.Profile = sketch15
groove7.ReferenceAxis = (sketch15, ["H_Axis"])
groove7.Angle = 360
doc.recompute()

datumline = body.newObject("PartDesign::Line", "DatumLine")
datumline.Placement = App.Placement(Vector(0, 0, 0), App.Rotation(Vector(0, 0, 1), Vector(0.923841935, 0, 0.382774188)))
linearpattern = body.newObject("PartDesign::LinearPattern", "LinearPattern")
linearpattern.Originals = [groove7]
linearpattern.Direction = (datumline, [""])
linearpattern.Mode = "offset"
linearpattern.Offset = 54.877786
linearpattern.Occurrences = 2
body.Tip = linearpattern
doc.recompute()

datumline2 = body.newObject("PartDesign::Line", "DatumLine001")
datumline2.Placement = App.Placement(Vector(0, 0, 0), App.Rotation(Vector(0, 0, 1), Vector(0.923841935, 0, -0.382774188)))
linearpattern2 = body.newObject("PartDesign::LinearPattern", "LinearPattern001")
linearpattern2.Originals = [groove7]
linearpattern2.Direction = (datumline2, [""])
linearpattern2.Mode = "offset"
linearpattern2.Offset = 54.877786
linearpattern2.Occurrences = 2
body.Tip = linearpattern2
doc.recompute()

datumline3 = body.newObject("PartDesign::Line", "DatumLine002")
datumline3.Placement = App.Placement(Vector(0, 0, 0), App.Rotation(Vector(0, 0, 1), Vector(0.382154394, 0, 0.92409849)))
linearpattern3 = body.newObject("PartDesign::LinearPattern", "LinearPattern002")
linearpattern3.Originals = [groove7]
linearpattern3.Direction = (datumline3, [""])
linearpattern3.Mode = "offset"
linearpattern3.Offset = 22.731127
linearpattern3.Occurrences = 2
body.Tip = linearpattern3
doc.recompute()

datumline4 = body.newObject("PartDesign::Line", "DatumLine003")
datumline4.Placement = App.Placement(Vector(0, 0, 0), App.Rotation(Vector(0, 0, 1), Vector(0.382154394, 0, -0.92409849)))
linearpattern4 = body.newObject("PartDesign::LinearPattern", "LinearPattern003")
linearpattern4.Originals = [groove7]
linearpattern4.Direction = (datumline4, [""])
linearpattern4.Mode = "offset"
linearpattern4.Offset = 22.731127
linearpattern4.Occurrences = 2
body.Tip = linearpattern4

# Sketch on XZ plane
sketch16 = body.newObject("Sketcher::SketchObject", "Sketch015")
sketch16.AttachmentSupport = (doc.getObject("XZ_Plane"), [""])
sketch16.MapMode = "FlatFace"
sketch16.AttachmentOffset = App.Placement(Vector(0, 0, 3.188 * 25.4), App.Rotation())
sketch16.addGeometry(Part.Circle(Vector(0, 0, 0), Vector(0, 0, 1), 11), False)
sketch16.addConstraint(Sketcher.Constraint("Coincident", 0, 3, -1, 1))
sketch16.addConstraint(Sketcher.Constraint("Diameter", 0, Q("0.895 in")))
pocket6 = body.newObject("PartDesign::Pocket", "Pocket005")
pocket6.Profile = sketch16
pocket6.Length = Q("0.06 in")
doc.recompute()

polarpattern = body.newObject("PartDesign::PolarPattern", "PolarPattern")
polarpattern.Originals = [groove5]
polarpattern.Axis = (doc.getObject("Y_Axis"), [""])
polarpattern.Angle = 360
polarpattern.Occurrences = 6
body.Tip = polarpattern
body2 = doc.addObject("PartDesign::Body", "Body001")

# Sketch on XY plane
sketch17 = body2.newObject("Sketcher::SketchObject", "Sketch016")
sketch17.AttachmentSupport = (doc.getObject("XY_Plane001"), [""])
sketch17.MapMode = "FlatFace"
sketch17.AttachmentOffset = App.Placement(Vector(0, 0, -0.466 * 25.4), App.Rotation())
sketch17.addGeometry(Part.Circle(Vector(-32.6, 0.5, 0), Vector(0, 0, 1), 1), False)
sketch17.addGeometry(Part.LineSegment(Vector(-28.6, 0.5, 0), Vector(-28.6, 10.5, 0)), True)  # axis
sketch17.addConstraint(Sketcher.Constraint("Vertical", 1))
sketch17.addConstraint(Sketcher.Constraint("Horizontal", 0, 3, 1, 1))
sketch17.addConstraint(Sketcher.Constraint("Diameter", 0, Q("2 mm")))
sketch17.addConstraint(Sketcher.Constraint("DistanceX", 1, 1, -1, 1, Q("1.125 in")))
sketch17.addConstraint(Sketcher.Constraint("DistanceY", 1, 1, 1, 2, Q("10 mm")))
sketch17.addConstraint(Sketcher.Constraint("DistanceX", 0, 3, -1, 1, Q("32.575 mm")))
sketch17.addConstraint(Sketcher.Constraint("DistanceY", -1, 1, 0, 3, Q("0.5 mm")))
revolution3 = body2.newObject("PartDesign::Revolution", "Revolution002")
revolution3.Profile = sketch17
revolution3.ReferenceAxis = (sketch17, ["Axis0"])
revolution3.Angle = 360
body3 = doc.addObject("PartDesign::Body", "Body002")
doc.recompute()

mirroring = doc.addObject("Part::Mirroring", "Mirroring")
mirroring.Source = body2
mirroring.Base = Vector(0, 0, 0)
mirroring.Normal = Vector(0, 0, 1)
body3.BaseFeature = mirroring
doc.recompute()
mirroring.Visibility = False

doc.recompute()
